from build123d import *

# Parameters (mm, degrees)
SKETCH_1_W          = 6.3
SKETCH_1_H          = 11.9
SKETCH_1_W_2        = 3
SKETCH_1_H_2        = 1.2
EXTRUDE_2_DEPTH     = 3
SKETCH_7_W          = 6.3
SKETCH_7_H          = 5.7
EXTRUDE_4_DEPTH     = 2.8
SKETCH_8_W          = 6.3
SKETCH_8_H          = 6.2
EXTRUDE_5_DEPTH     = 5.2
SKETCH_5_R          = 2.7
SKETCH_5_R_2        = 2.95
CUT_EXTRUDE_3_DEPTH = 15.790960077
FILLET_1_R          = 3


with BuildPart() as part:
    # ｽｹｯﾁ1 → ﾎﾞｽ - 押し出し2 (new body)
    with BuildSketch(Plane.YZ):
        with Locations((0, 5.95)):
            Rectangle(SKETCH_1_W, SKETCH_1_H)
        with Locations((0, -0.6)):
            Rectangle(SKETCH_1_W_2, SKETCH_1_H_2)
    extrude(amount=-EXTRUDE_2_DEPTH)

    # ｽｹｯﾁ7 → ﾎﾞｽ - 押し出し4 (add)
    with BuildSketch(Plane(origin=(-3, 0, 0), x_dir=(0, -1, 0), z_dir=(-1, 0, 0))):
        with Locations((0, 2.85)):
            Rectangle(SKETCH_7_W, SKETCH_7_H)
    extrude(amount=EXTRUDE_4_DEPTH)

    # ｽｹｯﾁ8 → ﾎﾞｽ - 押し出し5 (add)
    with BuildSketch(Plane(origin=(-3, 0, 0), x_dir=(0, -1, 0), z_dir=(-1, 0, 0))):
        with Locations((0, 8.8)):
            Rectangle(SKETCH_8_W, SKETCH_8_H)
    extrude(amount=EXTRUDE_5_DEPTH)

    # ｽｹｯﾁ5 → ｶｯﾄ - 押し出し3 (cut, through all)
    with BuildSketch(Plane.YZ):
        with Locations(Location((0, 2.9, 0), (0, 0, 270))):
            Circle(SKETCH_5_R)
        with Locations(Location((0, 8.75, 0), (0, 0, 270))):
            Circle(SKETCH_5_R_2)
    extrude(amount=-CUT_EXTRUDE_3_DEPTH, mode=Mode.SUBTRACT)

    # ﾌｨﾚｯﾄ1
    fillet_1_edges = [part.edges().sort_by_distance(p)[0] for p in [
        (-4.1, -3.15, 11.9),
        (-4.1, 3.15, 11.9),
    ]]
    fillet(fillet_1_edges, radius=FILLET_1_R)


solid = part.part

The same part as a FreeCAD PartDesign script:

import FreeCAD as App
import Part
import Sketcher
from FreeCAD import Vector
Q = App.Units.Quantity


def edges_at(feature, points):
    """Names of the edges that pass closest to the given points."""
    edges = feature.Shape.Edges
    near = lambda p: min(range(len(edges)), key=lambda i: edges[i].distToShape(Part.Vertex(*p))[0])
    return sorted({f"Edge{near(p) + 1}" for p in points})

doc = App.newDocument("Part")
params = doc.addObject("Spreadsheet::Sheet", "Params")
for row, (alias, value) in enumerate([
    ("sketch1_width", "3 mm"),
    ("sketch1_width2", "6.3 mm"),
    ("sketch1_height", "11.9 mm"),
    ("sketch1_height2", "1.2 mm"),
    ("pad1_length", "3 mm"),
    ("sketch2_width", "6.3 mm"),
    ("sketch2_height", "5.7 mm"),
    ("pad2_length", "2.8 mm"),
    ("sketch3_width", "6.3 mm"),
    ("sketch3_height", "6.2 mm"),
    ("pad3_length", "5.2 mm"),
    ("sketch4_diameter", "5.4 mm"),
    ("sketch4_diameter2", "5.9 mm"),
    ("fillet_radius", "3 mm"),
], start=1):
    params.set(f"A{row}", alias)
    params.set(f"B{row}", "=" + value)
    params.setAlias(f"B{row}", alias)

body = doc.addObject("PartDesign::Body", "Body")

# Sketch on YZ plane
sketch1 = body.newObject("Sketcher::SketchObject", "Sketch")
sketch1.AttachmentSupport = (doc.getObject("YZ_Plane"), [""])
sketch1.MapMode = "FlatFace"
sketch1.addGeometry(Part.LineSegment(Vector(-3.15, 11.9, 0), Vector(-3.15, 0, 0)), False)
sketch1.addGeometry(Part.LineSegment(Vector(-3.15, 0, 0), Vector(-1.5, 0, 0)), False)
sketch1.addGeometry(Part.LineSegment(Vector(-1.5, 0, 0), Vector(-1.5, -1.2, 0)), False)
sketch1.addGeometry(Part.LineSegment(Vector(-1.5, -1.2, 0), Vector(1.5, -1.2, 0)), False)
sketch1.addGeometry(Part.LineSegment(Vector(1.5, -1.2, 0), Vector(1.5, 0, 0)), False)
sketch1.addGeometry(Part.LineSegment(Vector(1.5, 0, 0), Vector(3.15, 0, 0)), False)
sketch1.addGeometry(Part.LineSegment(Vector(3.15, 0, 0), Vector(3.15, 11.9, 0)), False)
sketch1.addGeometry(Part.LineSegment(Vector(3.15, 11.9, 0), Vector(-3.15, 11.9, 0)), False)
sketch1.addConstraint(Sketcher.Constraint("Coincident", 0, 2, 1, 1))
sketch1.addConstraint(Sketcher.Constraint("Coincident", 1, 2, 2, 1))
sketch1.addConstraint(Sketcher.Constraint("Coincident", 2, 2, 3, 1))
sketch1.addConstraint(Sketcher.Constraint("Coincident", 3, 2, 4, 1))
sketch1.addConstraint(Sketcher.Constraint("Coincident", 4, 2, 5, 1))
sketch1.addConstraint(Sketcher.Constraint("Coincident", 5, 2, 6, 1))
sketch1.addConstraint(Sketcher.Constraint("Coincident", 6, 2, 7, 1))
sketch1.addConstraint(Sketcher.Constraint("Coincident", 7, 2, 0, 1))
sketch1.addConstraint(Sketcher.Constraint("Vertical", 0))
sketch1.addConstraint(Sketcher.Constraint("Horizontal", 1))
sketch1.addConstraint(Sketcher.Constraint("Vertical", 2))
sketch1.addConstraint(Sketcher.Constraint("Horizontal", 3))
sketch1.addConstraint(Sketcher.Constraint("Vertical", 4))
sketch1.addConstraint(Sketcher.Constraint("Horizontal", 5))
sketch1.addConstraint(Sketcher.Constraint("Vertical", 6))
sketch1.addConstraint(Sketcher.Constraint("Horizontal", 7))
sketch1.addConstraint(Sketcher.Constraint("Symmetric", 1, 2, 4, 2, -1, 1))
sketch1.addConstraint(Sketcher.Constraint("Symmetric", 0, 2, 5, 2, -2))
sketch1.addConstraint(Sketcher.Constraint("DistanceX", 3, 1, 3, 2, Q("3 mm")))
sketch1.addConstraint(Sketcher.Constraint("DistanceX", 7, 2, 7, 1, Q("6.3 mm")))
sketch1.addConstraint(Sketcher.Constraint("DistanceY", 0, 2, 0, 1, Q("11.9 mm")))
sketch1.addConstraint(Sketcher.Constraint("DistanceY", 2, 2, 2, 1, Q("1.2 mm")))
sketch1.setExpression("Constraints[18]", "Params.sketch1_width")
sketch1.setExpression("Constraints[19]", "Params.sketch1_width2")
sketch1.setExpression("Constraints[20]", "Params.sketch1_height")
sketch1.setExpression("Constraints[21]", "Params.sketch1_height2")
pad1 = body.newObject("PartDesign::Pad", "Pad")
pad1.Profile = sketch1
pad1.setExpression("Length", "Params.pad1_length")
pad1.Reversed = True

# Sketch on YZ plane
sketch2 = body.newObject("Sketcher::SketchObject", "Sketch001")
sketch2.AttachmentSupport = (doc.getObject("YZ_Plane"), [""])
sketch2.MapMode = "FlatFace"
sketch2.AttachmentOffset = App.Placement(Vector(0, 0, -3), App.Rotation())
sketch2.addGeometry(Part.LineSegment(Vector(3.15, 5.7, 0), Vector(3.15, 0, 0)), False)
sketch2.addGeometry(Part.LineSegment(Vector(3.15, 0, 0), Vector(-3.15, 0, 0)), False)
sketch2.addGeometry(Part.LineSegment(Vector(-3.15, 0, 0), Vector(-3.15, 5.7, 0)), False)
sketch2.addGeometry(Part.LineSegment(Vector(-3.15, 5.7, 0), Vector(3.15, 5.7, 0)), False)
sketch2.addConstraint(Sketcher.Constraint("Coincident", 0, 2, 1, 1))
sketch2.addConstraint(Sketcher.Constraint("Coincident", 1, 2, 2, 1))
sketch2.addConstraint(Sketcher.Constraint("Coincident", 2, 2, 3, 1))
sketch2.addConstraint(Sketcher.Constraint("Coincident", 3, 2, 0, 1))
sketch2.addConstraint(Sketcher.Constraint("Vertical", 0))
sketch2.addConstraint(Sketcher.Constraint("Horizontal", 1))
sketch2.addConstraint(Sketcher.Constraint("Vertical", 2))
sketch2.addConstraint(Sketcher.Constraint("Horizontal", 3))
sketch2.addConstraint(Sketcher.Constraint("Symmetric", 0, 2, 1, 2, -1, 1))
sketch2.addConstraint(Sketcher.Constraint("DistanceX", 1, 2, 1, 1, Q("6.3 mm")))
sketch2.addConstraint(Sketcher.Constraint("DistanceY", 0, 2, 0, 1, Q("5.7 mm")))
sketch2.setExpression("Constraints[9]", "Params.sketch2_width")
sketch2.setExpression("Constraints[10]", "Params.sketch2_height")
pad2 = body.newObject("PartDesign::Pad", "Pad001")
pad2.Profile = sketch2
pad2.setExpression("Length", "Params.pad2_length")
pad2.Reversed = True

# Sketch on YZ plane
sketch3 = body.newObject("Sketcher::SketchObject", "Sketch002")
sketch3.AttachmentSupport = (doc.getObject("YZ_Plane"), [""])
sketch3.MapMode = "FlatFace"
sketch3.AttachmentOffset = App.Placement(Vector(0, 0, -3), App.Rotation())
sketch3.addGeometry(Part.LineSegment(Vector(3.15, 11.9, 0), Vector(3.15, 5.7, 0)), False)
sketch3.addGeometry(Part.LineSegment(Vector(3.15, 5.7, 0), Vector(-3.15, 5.7, 0)), False)
sketch3.addGeometry(Part.LineSegment(Vector(-3.15, 5.7, 0), Vector(-3.15, 11.9, 0)), False)
sketch3.addGeometry(Part.LineSegment(Vector(-3.15, 11.9, 0), Vector(3.15, 11.9, 0)), False)
sketch3.addConstraint(Sketcher.Constraint("Coincident", 0, 2, 1, 1))
sketch3.addConstraint(Sketcher.Constraint("Coincident", 1, 2, 2, 1))
sketch3.addConstraint(Sketcher.Constraint("Coincident", 2, 2, 3, 1))
sketch3.addConstraint(Sketcher.Constraint("Coincident", 3, 2, 0, 1))
sketch3.addConstraint(Sketcher.Constraint("Vertical", 0))
sketch3.addConstraint(Sketcher.Constraint("Horizontal", 1))
sketch3.addConstraint(Sketcher.Constraint("Vertical", 2))
sketch3.addConstraint(Sketcher.Constraint("Horizontal", 3))
sketch3.addConstraint(Sketcher.Constraint("DistanceX", 1, 2, 1, 1, Q("6.3 mm")))
sketch3.addConstraint(Sketcher.Constraint("DistanceY", 0, 2, 0, 1, Q("6.2 mm")))
sketch3.addConstraint(Sketcher.Constraint("DistanceY", -1, 1, 0, 2, Q("5.7 mm")))
sketch3.addConstraint(Sketcher.Constraint("DistanceX", -1, 1, 0, 2, Q("3.15 mm")))
sketch3.setExpression("Constraints[8]", "Params.sketch3_width")
sketch3.setExpression("Constraints[9]", "Params.sketch3_height")
pad3 = body.newObject("PartDesign::Pad", "Pad002")
pad3.Profile = sketch3
pad3.setExpression("Length", "Params.pad3_length")
pad3.Reversed = True

# Sketch on YZ plane
sketch4 = body.newObject("Sketcher::SketchObject", "Sketch003")
sketch4.AttachmentSupport = (doc.getObject("YZ_Plane"), [""])
sketch4.MapMode = "FlatFace"
sketch4.addGeometry(Part.Circle(Vector(0, 2.9, 0), Vector(0, 0, 1), 2.7), False)
sketch4.addGeometry(Part.Circle(Vector(0, 8.75, 0), Vector(0, 0, 1), 2.95), False)
sketch4.addConstraint(Sketcher.Constraint("PointOnObject", 0, 3, -2))
sketch4.addConstraint(Sketcher.Constraint("PointOnObject", 1, 3, -2))
sketch4.addConstraint(Sketcher.Constraint("Diameter", 0, Q("5.4 mm")))
sketch4.addConstraint(Sketcher.Constraint("Diameter", 1, Q("5.9 mm")))
sketch4.addConstraint(Sketcher.Constraint("DistanceY", -1, 1, 0, 3, Q("2.9 mm")))
sketch4.addConstraint(Sketcher.Constraint("DistanceY", -1, 1, 1, 3, Q("8.75 mm")))
sketch4.setExpression("Constraints[2]", "Params.sketch4_diameter")
sketch4.setExpression("Constraints[3]", "Params.sketch4_diameter2")
pocket1 = body.newObject("PartDesign::Pocket", "Pocket")
pocket1.Profile = sketch4
pocket1.Type = "ThroughAll"
doc.recompute()

fillet = body.newObject("PartDesign::Fillet", "Fillet")
fillet.Base = (pocket1, edges_at(pocket1, [(-4.1, -3.15, 11.9), (-4.1, 3.15, 11.9)]))
fillet.setExpression("Radius", "Params.fillet_radius")

doc.recompute()
